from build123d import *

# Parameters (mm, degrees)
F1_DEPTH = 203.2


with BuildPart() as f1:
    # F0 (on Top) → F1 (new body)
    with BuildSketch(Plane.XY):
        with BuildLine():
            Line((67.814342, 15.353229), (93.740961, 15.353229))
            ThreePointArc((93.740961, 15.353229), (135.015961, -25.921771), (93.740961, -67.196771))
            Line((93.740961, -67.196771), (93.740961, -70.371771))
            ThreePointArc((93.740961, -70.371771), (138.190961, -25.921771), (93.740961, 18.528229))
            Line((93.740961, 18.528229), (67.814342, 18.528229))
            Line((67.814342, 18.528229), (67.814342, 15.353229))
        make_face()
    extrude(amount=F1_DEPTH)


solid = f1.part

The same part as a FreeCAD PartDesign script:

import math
import FreeCAD as App
import Part
import Sketcher

V = App.Vector
Q = App.Units.Quantity

doc = App.newDocument("Part")
body = doc.addObject("PartDesign::Body", "Body")

# Sketch on XY plane
sketch1 = body.newObject("Sketcher::SketchObject", "Sketch")
sketch1.AttachmentSupport = (doc.getObject("XY_Plane"), [""])
sketch1.MapMode = "FlatFace"
sketch1.addGeometry([
    Part.LineSegment(V(67.8, 15.4, 0), V(93.7, 15.4, 0)),  # 0
    Part.ArcOfCircle(Part.Circle(V(93.7, -25.9, 0), V(0, 0, 1), 41.3), math.radians(-90), math.radians(90)),  # 1
    Part.LineSegment(V(93.7, -67.2, 0), V(93.7, -70.4, 0)),  # 2
    Part.ArcOfCircle(Part.Circle(V(93.7, -25.9, 0), V(0, 0, 1), 44.5), math.radians(-90), math.radians(90)),  # 3
    Part.LineSegment(V(93.7, 18.5, 0), V(67.8, 18.5, 0)),  # 4
    Part.LineSegment(V(67.8, 18.5, 0), V(67.8, 15.4, 0)),  # 5
], False)
sketch1.addConstraint([
    Sketcher.Constraint("Tangent", 0, 2, 1, 2),
    Sketcher.Constraint("Coincident", 1, 1, 2, 1),
    Sketcher.Constraint("Coincident", 2, 2, 3, 1),
    Sketcher.Constraint("Tangent", 3, 2, 4, 1),
    Sketcher.Constraint("Coincident", 4, 2, 5, 1),
    Sketcher.Constraint("Coincident", 5, 2, 0, 1),
    Sketcher.Constraint("Horizontal", 0),
    Sketcher.Constraint("Vertical", 2),
    Sketcher.Constraint("Horizontal", 4),
    Sketcher.Constraint("Vertical", 5),
    Sketcher.Constraint("Coincident", 3, 3, 1, 3),
    Sketcher.Constraint("Vertical", 0, 2, 1, 1),
    Sketcher.Constraint("Radius", 3, Q("1.75 in")),
    Sketcher.Constraint("Radius", 1, Q("1.625 in")),
    Sketcher.Constraint("DistanceX", 0, 1, 0, 2, 25.926619),
    Sketcher.Constraint("DistanceX", -1, 1, 1, 3, 93.740961),
    Sketcher.Constraint("DistanceY", 1, 3, -1, 1, 25.921771),
])
pad1 = body.newObject("PartDesign::Pad", "Pad")
pad1.Profile = sketch1
pad1.Length = Q("8 in")

doc.recompute()
